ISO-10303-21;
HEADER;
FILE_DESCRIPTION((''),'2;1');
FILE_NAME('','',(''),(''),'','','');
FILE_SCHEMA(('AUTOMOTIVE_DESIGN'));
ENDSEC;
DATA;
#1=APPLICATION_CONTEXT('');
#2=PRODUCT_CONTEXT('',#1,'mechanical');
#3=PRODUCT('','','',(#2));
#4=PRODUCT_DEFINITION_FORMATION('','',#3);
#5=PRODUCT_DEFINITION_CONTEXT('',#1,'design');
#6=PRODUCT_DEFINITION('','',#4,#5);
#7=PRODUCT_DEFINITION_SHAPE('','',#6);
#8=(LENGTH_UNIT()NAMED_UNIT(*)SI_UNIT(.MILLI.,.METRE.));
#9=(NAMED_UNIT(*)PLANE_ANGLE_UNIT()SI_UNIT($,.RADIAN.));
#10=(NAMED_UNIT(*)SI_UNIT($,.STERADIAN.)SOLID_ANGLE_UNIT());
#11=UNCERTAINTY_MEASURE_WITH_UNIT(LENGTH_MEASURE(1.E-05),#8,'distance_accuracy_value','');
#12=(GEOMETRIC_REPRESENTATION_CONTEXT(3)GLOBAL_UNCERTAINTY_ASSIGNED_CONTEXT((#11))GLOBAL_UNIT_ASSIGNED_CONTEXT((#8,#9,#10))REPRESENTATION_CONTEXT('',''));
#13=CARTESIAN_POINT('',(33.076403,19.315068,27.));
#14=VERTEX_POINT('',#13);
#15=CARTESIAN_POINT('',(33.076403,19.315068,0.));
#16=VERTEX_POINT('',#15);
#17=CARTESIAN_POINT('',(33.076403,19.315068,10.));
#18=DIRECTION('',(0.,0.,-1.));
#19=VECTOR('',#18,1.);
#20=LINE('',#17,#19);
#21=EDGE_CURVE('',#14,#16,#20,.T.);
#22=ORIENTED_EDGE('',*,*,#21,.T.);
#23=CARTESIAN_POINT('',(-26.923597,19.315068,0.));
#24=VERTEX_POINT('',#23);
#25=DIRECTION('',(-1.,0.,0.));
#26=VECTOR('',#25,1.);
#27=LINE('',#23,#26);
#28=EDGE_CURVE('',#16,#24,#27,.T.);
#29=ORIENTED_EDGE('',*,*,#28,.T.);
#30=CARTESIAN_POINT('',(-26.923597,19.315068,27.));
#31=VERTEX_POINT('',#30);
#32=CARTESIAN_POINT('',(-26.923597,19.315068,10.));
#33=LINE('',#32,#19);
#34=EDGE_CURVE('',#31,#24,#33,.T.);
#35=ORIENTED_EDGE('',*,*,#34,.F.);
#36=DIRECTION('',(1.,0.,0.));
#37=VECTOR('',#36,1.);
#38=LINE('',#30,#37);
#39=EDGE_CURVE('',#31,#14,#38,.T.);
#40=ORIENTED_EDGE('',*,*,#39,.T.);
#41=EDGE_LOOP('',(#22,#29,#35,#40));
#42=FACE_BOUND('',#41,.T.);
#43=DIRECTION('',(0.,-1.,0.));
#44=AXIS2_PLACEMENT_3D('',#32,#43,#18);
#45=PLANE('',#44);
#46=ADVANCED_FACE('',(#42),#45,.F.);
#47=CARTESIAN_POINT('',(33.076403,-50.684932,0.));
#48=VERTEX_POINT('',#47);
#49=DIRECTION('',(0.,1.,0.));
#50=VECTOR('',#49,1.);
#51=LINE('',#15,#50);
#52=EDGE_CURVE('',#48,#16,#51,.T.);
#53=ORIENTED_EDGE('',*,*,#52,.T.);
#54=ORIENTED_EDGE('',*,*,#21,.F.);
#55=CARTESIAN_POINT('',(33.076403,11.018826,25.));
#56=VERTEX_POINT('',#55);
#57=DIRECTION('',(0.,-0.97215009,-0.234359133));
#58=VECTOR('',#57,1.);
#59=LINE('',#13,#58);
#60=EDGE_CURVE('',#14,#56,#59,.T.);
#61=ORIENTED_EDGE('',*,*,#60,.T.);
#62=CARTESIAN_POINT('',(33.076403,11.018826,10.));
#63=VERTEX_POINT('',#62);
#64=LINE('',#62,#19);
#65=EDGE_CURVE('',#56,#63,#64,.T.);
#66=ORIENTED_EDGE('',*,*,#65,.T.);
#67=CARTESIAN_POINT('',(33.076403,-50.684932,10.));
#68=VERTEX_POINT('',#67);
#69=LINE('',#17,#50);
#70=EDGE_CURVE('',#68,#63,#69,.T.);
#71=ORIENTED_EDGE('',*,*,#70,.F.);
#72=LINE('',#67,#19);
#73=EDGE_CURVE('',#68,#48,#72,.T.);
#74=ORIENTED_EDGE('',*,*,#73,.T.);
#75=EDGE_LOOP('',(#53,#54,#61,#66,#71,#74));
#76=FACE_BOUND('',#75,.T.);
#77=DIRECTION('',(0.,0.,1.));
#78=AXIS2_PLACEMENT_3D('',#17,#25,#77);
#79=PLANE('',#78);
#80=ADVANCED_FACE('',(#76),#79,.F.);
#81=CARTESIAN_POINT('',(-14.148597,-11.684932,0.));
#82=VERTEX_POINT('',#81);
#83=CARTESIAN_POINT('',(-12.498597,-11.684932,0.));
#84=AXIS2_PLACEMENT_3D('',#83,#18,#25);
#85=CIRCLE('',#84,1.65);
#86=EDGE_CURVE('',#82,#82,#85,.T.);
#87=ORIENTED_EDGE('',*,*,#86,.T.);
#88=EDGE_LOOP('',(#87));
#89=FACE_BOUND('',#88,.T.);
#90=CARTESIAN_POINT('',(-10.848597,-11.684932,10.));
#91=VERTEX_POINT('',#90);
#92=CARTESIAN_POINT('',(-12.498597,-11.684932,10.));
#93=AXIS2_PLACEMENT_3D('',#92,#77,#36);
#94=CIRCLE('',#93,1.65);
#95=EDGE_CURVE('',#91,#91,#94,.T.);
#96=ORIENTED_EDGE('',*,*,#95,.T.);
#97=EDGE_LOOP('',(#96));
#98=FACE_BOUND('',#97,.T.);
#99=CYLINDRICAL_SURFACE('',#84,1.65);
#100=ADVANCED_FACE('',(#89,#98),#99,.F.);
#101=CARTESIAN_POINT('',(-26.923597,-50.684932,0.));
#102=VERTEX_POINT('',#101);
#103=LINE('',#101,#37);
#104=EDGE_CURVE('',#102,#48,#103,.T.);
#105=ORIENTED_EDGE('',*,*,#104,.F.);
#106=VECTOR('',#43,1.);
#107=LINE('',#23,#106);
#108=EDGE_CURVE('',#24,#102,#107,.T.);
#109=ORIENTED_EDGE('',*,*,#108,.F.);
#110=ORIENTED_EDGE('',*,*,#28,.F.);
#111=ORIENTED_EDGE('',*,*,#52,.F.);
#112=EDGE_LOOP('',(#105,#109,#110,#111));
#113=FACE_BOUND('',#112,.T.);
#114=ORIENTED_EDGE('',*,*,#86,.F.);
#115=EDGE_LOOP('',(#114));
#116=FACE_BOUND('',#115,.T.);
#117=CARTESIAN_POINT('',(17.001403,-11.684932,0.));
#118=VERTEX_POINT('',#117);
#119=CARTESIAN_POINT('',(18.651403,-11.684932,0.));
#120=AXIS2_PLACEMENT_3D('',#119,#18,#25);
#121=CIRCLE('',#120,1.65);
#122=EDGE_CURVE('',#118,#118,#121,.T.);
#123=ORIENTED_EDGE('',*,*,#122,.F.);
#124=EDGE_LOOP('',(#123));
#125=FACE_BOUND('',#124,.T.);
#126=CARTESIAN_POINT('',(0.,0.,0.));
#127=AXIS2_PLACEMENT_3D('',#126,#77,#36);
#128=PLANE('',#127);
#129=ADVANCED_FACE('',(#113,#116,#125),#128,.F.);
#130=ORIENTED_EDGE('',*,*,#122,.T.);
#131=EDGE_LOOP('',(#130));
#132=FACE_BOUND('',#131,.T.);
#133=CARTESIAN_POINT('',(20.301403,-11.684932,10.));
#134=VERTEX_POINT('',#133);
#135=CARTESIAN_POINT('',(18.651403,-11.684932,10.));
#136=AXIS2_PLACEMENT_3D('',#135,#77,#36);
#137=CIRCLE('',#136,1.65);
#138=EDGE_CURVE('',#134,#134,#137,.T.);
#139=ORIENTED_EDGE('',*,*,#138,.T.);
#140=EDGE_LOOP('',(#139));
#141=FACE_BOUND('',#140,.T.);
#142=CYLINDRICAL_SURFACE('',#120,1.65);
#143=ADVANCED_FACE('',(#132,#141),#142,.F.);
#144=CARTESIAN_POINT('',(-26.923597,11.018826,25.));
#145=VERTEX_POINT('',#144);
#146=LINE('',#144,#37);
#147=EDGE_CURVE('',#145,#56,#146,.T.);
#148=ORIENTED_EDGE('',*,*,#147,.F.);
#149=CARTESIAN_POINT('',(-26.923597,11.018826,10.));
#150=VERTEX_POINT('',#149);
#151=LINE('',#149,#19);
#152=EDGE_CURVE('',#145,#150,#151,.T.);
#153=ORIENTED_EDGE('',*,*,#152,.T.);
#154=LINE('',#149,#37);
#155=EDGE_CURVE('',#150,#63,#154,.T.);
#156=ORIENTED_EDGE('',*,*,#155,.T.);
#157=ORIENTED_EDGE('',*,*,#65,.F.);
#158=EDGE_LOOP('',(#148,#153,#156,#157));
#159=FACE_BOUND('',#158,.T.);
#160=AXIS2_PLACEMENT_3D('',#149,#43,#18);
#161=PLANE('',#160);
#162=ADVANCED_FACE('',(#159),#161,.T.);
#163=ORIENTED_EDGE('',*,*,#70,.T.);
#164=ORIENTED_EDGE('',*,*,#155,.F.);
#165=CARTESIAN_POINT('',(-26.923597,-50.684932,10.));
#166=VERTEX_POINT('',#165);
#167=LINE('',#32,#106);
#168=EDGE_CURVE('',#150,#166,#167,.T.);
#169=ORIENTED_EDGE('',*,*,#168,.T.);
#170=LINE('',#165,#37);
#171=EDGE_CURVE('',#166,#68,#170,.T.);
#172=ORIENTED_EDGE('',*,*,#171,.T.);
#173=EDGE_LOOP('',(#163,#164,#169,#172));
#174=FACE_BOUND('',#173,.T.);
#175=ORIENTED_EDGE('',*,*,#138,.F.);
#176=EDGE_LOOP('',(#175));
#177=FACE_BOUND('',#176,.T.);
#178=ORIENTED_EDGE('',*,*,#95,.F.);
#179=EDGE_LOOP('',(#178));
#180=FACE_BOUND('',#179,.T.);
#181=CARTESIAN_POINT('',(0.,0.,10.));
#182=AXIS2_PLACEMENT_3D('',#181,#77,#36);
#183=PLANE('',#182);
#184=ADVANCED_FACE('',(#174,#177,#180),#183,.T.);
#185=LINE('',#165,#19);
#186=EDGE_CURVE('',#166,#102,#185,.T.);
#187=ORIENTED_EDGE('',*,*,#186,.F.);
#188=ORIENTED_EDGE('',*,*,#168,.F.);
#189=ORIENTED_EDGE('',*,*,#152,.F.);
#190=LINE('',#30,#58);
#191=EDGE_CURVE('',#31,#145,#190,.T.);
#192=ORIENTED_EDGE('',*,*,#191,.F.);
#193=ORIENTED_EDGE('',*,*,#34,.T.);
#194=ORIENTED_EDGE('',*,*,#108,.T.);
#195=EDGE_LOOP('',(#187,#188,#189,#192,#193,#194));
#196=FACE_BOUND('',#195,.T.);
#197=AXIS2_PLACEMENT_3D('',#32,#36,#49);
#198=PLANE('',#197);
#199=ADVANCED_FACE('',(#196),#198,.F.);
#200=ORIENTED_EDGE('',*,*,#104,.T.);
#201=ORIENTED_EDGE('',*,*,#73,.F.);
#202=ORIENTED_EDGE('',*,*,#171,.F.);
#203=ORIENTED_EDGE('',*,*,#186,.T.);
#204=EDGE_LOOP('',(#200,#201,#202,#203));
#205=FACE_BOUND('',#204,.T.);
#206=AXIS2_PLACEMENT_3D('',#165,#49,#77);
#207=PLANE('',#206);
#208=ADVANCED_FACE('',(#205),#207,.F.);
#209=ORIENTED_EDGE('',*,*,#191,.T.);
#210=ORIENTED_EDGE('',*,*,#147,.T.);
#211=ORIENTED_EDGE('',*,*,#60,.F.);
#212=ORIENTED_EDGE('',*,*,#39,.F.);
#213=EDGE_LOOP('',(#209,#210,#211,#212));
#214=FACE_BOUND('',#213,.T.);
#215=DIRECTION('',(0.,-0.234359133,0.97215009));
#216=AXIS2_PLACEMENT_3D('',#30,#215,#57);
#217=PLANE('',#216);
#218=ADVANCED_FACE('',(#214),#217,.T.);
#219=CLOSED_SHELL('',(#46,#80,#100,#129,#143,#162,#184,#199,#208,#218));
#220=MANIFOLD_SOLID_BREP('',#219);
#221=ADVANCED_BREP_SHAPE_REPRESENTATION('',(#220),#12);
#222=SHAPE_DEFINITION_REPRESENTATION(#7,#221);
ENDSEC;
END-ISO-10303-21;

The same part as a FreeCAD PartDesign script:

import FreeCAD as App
import Part
import Sketcher

doc = App.newDocument("Part")
body = doc.addObject("PartDesign::Body", "Body")

sketch1 = body.newObject("Sketcher::SketchObject", "Sketch")
sketch1.AttachmentSupport = (doc.getObject("XY_Plane"), [""])
sketch1.MapMode = "FlatFace"
sketch1.addGeometry([
    Part.LineSegment(App.Vector(-26.923597, 19.315068, 0), App.Vector(-26.923597, -50.684932, 0)),
    Part.LineSegment(App.Vector(-26.923597, -50.684932, 0), App.Vector(33.076403, -50.684932, 0)),
    Part.LineSegment(App.Vector(33.076403, -50.684932, 0), App.Vector(33.076403, 19.315068, 0)),
    Part.LineSegment(App.Vector(33.076403, 19.315068, 0), App.Vector(-26.923597, 19.315068, 0)),
], False)
sketch1.addConstraint([
    Sketcher.Constraint("Coincident", 0, 2, 1, 1),
    Sketcher.Constraint("Coincident", 1, 2, 2, 1),
    Sketcher.Constraint("Coincident", 2, 2, 3, 1),
    Sketcher.Constraint("Coincident", 3, 2, 0, 1),
    Sketcher.Constraint("Vertical", 0),
    Sketcher.Constraint("Horizontal", 1),
    Sketcher.Constraint("Vertical", 2),
    Sketcher.Constraint("Horizontal", 3),
    Sketcher.Constraint("DistanceX", 1, 1, 1, 2, 60.0),
    Sketcher.Constraint("DistanceY", 0, 2, 0, 1, 70.0),
    Sketcher.Constraint("DistanceY", 0, 2, -1, 1, 50.684932),
    Sketcher.Constraint("DistanceX", 0, 2, -1, 1, 26.923597),
])
pad1 = body.newObject("PartDesign::Pad", "Pad")
pad1.Profile = sketch1
pad1.Length = 10

sketch2 = body.newObject("Sketcher::SketchObject", "Sketch001")
sketch2.AttachmentSupport = (doc.getObject("YZ_Plane"), [""])
sketch2.MapMode = "FlatFace"
sketch2.AttachmentOffset = App.Placement(App.Vector(0, 0, 33.076403), App.Rotation())
sketch2.addGeometry([
    Part.LineSegment(App.Vector(19.315068, 27, 0), App.Vector(11.018826, 25, 0)),
    Part.LineSegment(App.Vector(11.018826, 25, 0), App.Vector(11.018826, 10, 0)),
    Part.LineSegment(App.Vector(11.018826, 10, 0), App.Vector(19.315068, 10, 0)),
    Part.LineSegment(App.Vector(19.315068, 10, 0), App.Vector(19.315068, 27, 0)),
], False)
sketch2.addConstraint([
    Sketcher.Constraint("Coincident", 0, 2, 1, 1),
    Sketcher.Constraint("Coincident", 1, 2, 2, 1),
    Sketcher.Constraint("Coincident", 2, 2, 3, 1),
    Sketcher.Constraint("Coincident", 3, 2, 0, 1),
    Sketcher.Constraint("Vertical", 1),
    Sketcher.Constraint("Horizontal", 2),
    Sketcher.Constraint("Vertical", 3),
    Sketcher.Constraint("DistanceY", 1, 2, 1, 1, 15.0),
    Sketcher.Constraint("DistanceY", 3, 1, 3, 2, 17.0),
    Sketcher.Constraint("DistanceY", -1, 1, 0, 2, 25.0),
    Sketcher.Constraint("Distance", 0, 8.533911),
    Sketcher.Constraint("DistanceX", -1, 1, 2, 2, 19.315068),
])
pad2 = body.newObject("PartDesign::Pad", "Pad001")
pad2.Profile = sketch2
pad2.Length = 60
pad2.Reversed = True

sketch3 = body.newObject("Sketcher::SketchObject", "Sketch002")
sketch3.AttachmentSupport = (doc.getObject("XY_Plane"), [""])
sketch3.MapMode = "FlatFace"
sketch3.addGeometry([
    Part.Circle(App.Vector(18.651403, -11.684932, 0), App.Vector(0, 0, 1), 1.65),
    Part.Circle(App.Vector(-12.498597, -11.684932, 0), App.Vector(0, 0, 1), 1.65),
], False)
sketch3.addConstraint([
    Sketcher.Constraint("Equal", 0, 1),
    Sketcher.Constraint("Horizontal", 0, 3, 1, 3),
    Sketcher.Constraint("Diameter", 0, 3.3),
    Sketcher.Constraint("DistanceX", 1, 3, 0, 3, 31.15),
    Sketcher.Constraint("DistanceY", 0, 3, -1, 1, 11.684932),
    Sketcher.Constraint("DistanceX", -1, 1, 0, 3, 18.651403),
])
doc.recompute()
hole = body.newObject("PartDesign::Hole", "Hole")
hole.Profile = sketch3
hole.ThreadType = "None"
hole.Diameter = 3.3
hole.DepthType = "Dimension"
hole.Depth = 11.5
hole.DrillPoint = "Angled"
hole.DrillPointAngle = 118
hole.Reversed = True

doc.recompute()
